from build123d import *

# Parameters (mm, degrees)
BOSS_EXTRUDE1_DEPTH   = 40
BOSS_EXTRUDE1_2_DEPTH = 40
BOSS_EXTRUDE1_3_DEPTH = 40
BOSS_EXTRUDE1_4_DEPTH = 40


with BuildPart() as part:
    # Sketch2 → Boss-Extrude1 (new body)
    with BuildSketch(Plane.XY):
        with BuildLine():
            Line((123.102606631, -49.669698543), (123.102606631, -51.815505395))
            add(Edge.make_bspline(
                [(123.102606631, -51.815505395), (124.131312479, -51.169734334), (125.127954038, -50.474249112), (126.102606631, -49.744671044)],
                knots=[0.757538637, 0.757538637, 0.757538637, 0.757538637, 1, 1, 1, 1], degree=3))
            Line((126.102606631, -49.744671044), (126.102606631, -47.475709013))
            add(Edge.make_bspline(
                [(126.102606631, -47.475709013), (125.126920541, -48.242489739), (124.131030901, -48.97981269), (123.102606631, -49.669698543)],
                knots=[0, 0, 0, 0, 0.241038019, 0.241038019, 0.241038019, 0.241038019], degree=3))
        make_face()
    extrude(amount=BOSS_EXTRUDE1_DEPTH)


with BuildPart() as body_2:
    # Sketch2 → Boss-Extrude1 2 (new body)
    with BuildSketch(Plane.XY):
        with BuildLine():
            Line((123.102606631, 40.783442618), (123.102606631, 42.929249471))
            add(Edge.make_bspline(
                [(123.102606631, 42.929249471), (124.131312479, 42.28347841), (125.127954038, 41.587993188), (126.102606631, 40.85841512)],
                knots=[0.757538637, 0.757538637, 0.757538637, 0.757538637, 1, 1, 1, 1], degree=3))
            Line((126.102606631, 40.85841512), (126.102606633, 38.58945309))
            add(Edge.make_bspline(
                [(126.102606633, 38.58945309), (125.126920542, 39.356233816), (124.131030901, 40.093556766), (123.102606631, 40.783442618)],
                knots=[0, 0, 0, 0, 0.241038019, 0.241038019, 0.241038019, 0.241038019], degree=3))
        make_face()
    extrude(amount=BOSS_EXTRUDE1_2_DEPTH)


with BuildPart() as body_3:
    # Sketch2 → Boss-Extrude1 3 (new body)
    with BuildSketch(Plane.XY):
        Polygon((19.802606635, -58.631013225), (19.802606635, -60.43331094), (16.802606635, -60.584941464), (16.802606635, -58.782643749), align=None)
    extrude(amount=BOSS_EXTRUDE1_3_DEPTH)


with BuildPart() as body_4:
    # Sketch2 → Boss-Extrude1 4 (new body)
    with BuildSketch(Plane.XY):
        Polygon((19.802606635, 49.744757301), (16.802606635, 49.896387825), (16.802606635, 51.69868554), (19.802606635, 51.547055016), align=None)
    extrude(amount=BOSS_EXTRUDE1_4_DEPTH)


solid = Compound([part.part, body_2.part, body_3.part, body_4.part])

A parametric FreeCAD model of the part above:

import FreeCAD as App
import Part
import Sketcher


def add_polygon(sketch, points):
    """Adds a closed chain of lines whose ends are joined by coincident constraints."""
    first, n = sketch.GeometryCount, len(points)
    for a, b in zip(points, points[1:] + points[:1]):
        sketch.addGeometry(Part.LineSegment(App.Vector(*a, 0), App.Vector(*b, 0)), False)
    for i in range(n):
        sketch.addConstraint(Sketcher.Constraint("Coincident", first + i, 2, first + (i + 1) % n, 1))

doc = App.newDocument("Part")
body = doc.addObject("PartDesign::Body", "Body")

sketch1 = body.newObject("Sketcher::SketchObject", "Sketch")
sketch1.AttachmentSupport = (doc.getObject("XY_Plane"), [""])
sketch1.MapMode = "FlatFace"
sketch1.addGeometry([
    Part.LineSegment(App.Vector(123.102607, -49.669699, 0), App.Vector(123.102607, -51.815505, 0)),
    Part.BSplineCurve([App.Vector(123.102607, -51.815505, 0), App.Vector(124.131312, -51.169734, 0), App.Vector(125.127954, -50.474249, 0), App.Vector(126.102607, -49.744671, 0)], [4, 4], [0.757538637, 1], False, 3, [1, 1, 1, 1], False),
    Part.LineSegment(App.Vector(126.102607, -49.744671, 0), App.Vector(126.102607, -47.475709, 0)),
    Part.BSplineCurve([App.Vector(126.102607, -47.475709, 0), App.Vector(125.126921, -48.24249, 0), App.Vector(124.131031, -48.979813, 0), App.Vector(123.102607, -49.669699, 0)], [4, 4], [0, 0.241038019], False, 3, [1, 1, 1, 1], False),
], False)
sketch1.addConstraint([
    Sketcher.Constraint("Block", 1),
    Sketcher.Constraint("Block", 3),
    Sketcher.Constraint("Coincident", 0, 2, 1, 1),
    Sketcher.Constraint("Coincident", 1, 2, 2, 1),
    Sketcher.Constraint("Coincident", 2, 2, 3, 1),
    Sketcher.Constraint("Coincident", 3, 2, 0, 1),
])
pad1 = body.newObject("PartDesign::Pad", "Pad")
pad1.Profile = sketch1
pad1.Length = 40
body2 = doc.addObject("PartDesign::Body", "Body001")

sketch2 = body2.newObject("Sketcher::SketchObject", "Sketch001")
sketch2.AttachmentSupport = (doc.getObject("XY_Plane001"), [""])
sketch2.MapMode = "FlatFace"
sketch2.addGeometry([
    Part.LineSegment(App.Vector(123.102607, 42.929249, 0), App.Vector(123.102607, 40.783443, 0)),
    Part.BSplineCurve([App.Vector(126.102607, 38.589453, 0), App.Vector(125.126921, 39.356234, 0), App.Vector(124.131031, 40.093557, 0), App.Vector(123.102607, 40.783443, 0)], [4, 4], [0, 0.241038019], False, 3, [1, 1, 1, 1], False),
    Part.LineSegment(App.Vector(126.102607, 38.589453, 0), App.Vector(126.102607, 40.858415, 0)),
    Part.BSplineCurve([App.Vector(123.102607, 42.929249, 0), App.Vector(124.131312, 42.283478, 0), App.Vector(125.127954, 41.587993, 0), App.Vector(126.102607, 40.858415, 0)], [4, 4], [0.757538637, 1], False, 3, [1, 1, 1, 1], False),
], False)
sketch2.addConstraint([
    Sketcher.Constraint("Block", 1),
    Sketcher.Constraint("Block", 3),
    Sketcher.Constraint("Coincident", 0, 2, 1, 2),
    Sketcher.Constraint("Coincident", 1, 1, 2, 1),
    Sketcher.Constraint("Coincident", 2, 2, 3, 2),
    Sketcher.Constraint("Coincident", 3, 1, 0, 1),
])
pad2 = body2.newObject("PartDesign::Pad", "Pad001")
pad2.Profile = sketch2
pad2.Length = 40
body3 = doc.addObject("PartDesign::Body", "Body002")

sketch3 = body3.newObject("Sketcher::SketchObject", "Sketch002")
sketch3.AttachmentSupport = (doc.getObject("XY_Plane002"), [""])
sketch3.MapMode = "FlatFace"
add_polygon(sketch3, [(19.8, -60.4), (19.8, -58.6), (16.8, -58.8), (16.8, -60.6)])
sketch3.addConstraint([
    Sketcher.Constraint("Vertical", 0),
    Sketcher.Constraint("Vertical", 2),
    Sketcher.Constraint("Parallel", 1, 3),
    Sketcher.Constraint("DistanceX", 1, 2, 0, 2, 3.0),
    Sketcher.Constraint("Distance", 1, 3.00383),
    Sketcher.Constraint("DistanceY", 0, 1, 0, 2, 1.802298),
    Sketcher.Constraint("DistanceY", 2, 2, -1, 1, 60.584941),
    Sketcher.Constraint("DistanceX", -1, 1, 0, 2, 19.802607),
])
pad3 = body3.newObject("PartDesign::Pad", "Pad002")
pad3.Profile = sketch3
pad3.Length = 40
body4 = doc.addObject("PartDesign::Body", "Body003")

sketch4 = body4.newObject("Sketcher::SketchObject", "Sketch003")
sketch4.AttachmentSupport = (doc.getObject("XY_Plane003"), [""])
sketch4.MapMode = "FlatFace"
add_polygon(sketch4, [(16.8, 49.9), (19.8, 49.7), (19.8, 51.5), (16.8, 51.7)])
sketch4.addConstraint([
    Sketcher.Constraint("Vertical", 1),
    Sketcher.Constraint("Vertical", 3),
    Sketcher.Constraint("Parallel", 0, 2),
    Sketcher.Constraint("DistanceX", 2, 2, 1, 2, 3.0),
    Sketcher.Constraint("Distance", 0, 3.00383),
    Sketcher.Constraint("DistanceY", 1, 1, 1, 2, 1.802298),
    Sketcher.Constraint("DistanceX", -1, 1, 0, 2, 19.802607),
    Sketcher.Constraint("DistanceY", -1, 1, 0, 2, 49.744757),
])
pad4 = body4.newObject("PartDesign::Pad", "Pad003")
pad4.Profile = sketch4
pad4.Length = 40

doc.recompute()
